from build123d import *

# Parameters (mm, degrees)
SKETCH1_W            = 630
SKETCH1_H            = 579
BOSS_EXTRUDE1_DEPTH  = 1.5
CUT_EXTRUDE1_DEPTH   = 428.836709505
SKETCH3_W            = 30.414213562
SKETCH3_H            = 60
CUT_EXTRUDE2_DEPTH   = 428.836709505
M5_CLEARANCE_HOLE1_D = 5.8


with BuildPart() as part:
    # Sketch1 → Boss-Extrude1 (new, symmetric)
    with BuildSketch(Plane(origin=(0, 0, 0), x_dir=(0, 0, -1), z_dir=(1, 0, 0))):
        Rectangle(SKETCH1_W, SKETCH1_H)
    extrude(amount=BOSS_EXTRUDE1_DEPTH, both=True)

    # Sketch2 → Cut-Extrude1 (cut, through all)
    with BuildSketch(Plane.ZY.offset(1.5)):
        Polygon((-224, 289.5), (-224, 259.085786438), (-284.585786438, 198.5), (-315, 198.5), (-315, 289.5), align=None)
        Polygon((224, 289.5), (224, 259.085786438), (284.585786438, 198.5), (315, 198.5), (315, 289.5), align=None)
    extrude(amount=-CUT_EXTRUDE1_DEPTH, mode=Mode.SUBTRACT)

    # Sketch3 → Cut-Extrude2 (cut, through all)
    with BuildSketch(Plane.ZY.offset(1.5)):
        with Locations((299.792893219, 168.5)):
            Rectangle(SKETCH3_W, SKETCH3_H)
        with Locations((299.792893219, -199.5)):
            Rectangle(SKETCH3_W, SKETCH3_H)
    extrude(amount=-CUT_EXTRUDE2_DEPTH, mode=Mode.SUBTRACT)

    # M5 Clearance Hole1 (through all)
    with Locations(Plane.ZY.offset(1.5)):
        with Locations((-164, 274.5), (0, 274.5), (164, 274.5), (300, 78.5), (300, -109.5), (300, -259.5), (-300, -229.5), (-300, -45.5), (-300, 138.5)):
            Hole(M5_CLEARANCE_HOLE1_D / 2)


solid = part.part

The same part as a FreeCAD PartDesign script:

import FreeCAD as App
import Part
import Sketcher
Q = App.Units.Quantity


def add_polygon(sketch, points):
    """Adds a closed chain of lines whose ends are joined by coincident constraints."""
    first, n = sketch.GeometryCount, len(points)
    for a, b in zip(points, points[1:] + points[:1]):
        sketch.addGeometry(Part.LineSegment(App.Vector(*a, 0), App.Vector(*b, 0)), False)
    for i in range(n):
        sketch.addConstraint(Sketcher.Constraint("Coincident", first + i, 2, first + (i + 1) % n, 1))

doc = App.newDocument("Part")
body = doc.addObject("PartDesign::Body", "Body")

# Sketch on YZ plane
sketch1 = doc.addObject("Sketcher::SketchObject", "Sketch")
body.addObject(sketch1)
sketch1.AttachmentSupport = (doc.YZ_Plane, [""])
sketch1.MapMode = "FlatFace"
add_polygon(sketch1, [(289.5, 315), (-289.5, 315), (-289.5, -315), (289.5, -315)])  # lines 0-3
sketch1.addConstraint(Sketcher.Constraint("Horizontal", 0))
sketch1.addConstraint(Sketcher.Constraint("Vertical", 1))
sketch1.addConstraint(Sketcher.Constraint("Horizontal", 2))
sketch1.addConstraint(Sketcher.Constraint("Vertical", 3))
sketch1.addConstraint(Sketcher.Constraint("Symmetric", 0, 2, 2, 2, -1, 1))
sketch1.addConstraint(Sketcher.Constraint("DistanceX", 0, 2, 0, 1, Q("579 mm")))
sketch1.addConstraint(Sketcher.Constraint("DistanceY", 1, 2, 1, 1, Q("630 mm")))
pad1 = doc.addObject("PartDesign::Pad", "Pad")
body.addObject(pad1)
pad1.Profile = sketch1
pad1.Length = 3
pad1.Midplane = True

# Sketch on YZ plane
sketch2 = doc.addObject("Sketcher::SketchObject", "Sketch001")
body.addObject(sketch2)
sketch2.AttachmentSupport = (doc.YZ_Plane, [""])
sketch2.MapMode = "FlatFace"
sketch2.AttachmentOffset = App.Placement(App.Vector(0, 0, -1.5), App.Rotation())
add_polygon(sketch2, [(259.085786, -224), (289.5, -224), (289.5, -315), (198.5, -315), (198.5, -284.585786)])  # lines 0-4
add_polygon(sketch2, [(289.5, 224), (259.085786, 224), (198.5, 284.585786), (198.5, 315), (289.5, 315)])  # lines 5-9
sketch2.addConstraint(Sketcher.Constraint("Horizontal", 0))
sketch2.addConstraint(Sketcher.Constraint("Vertical", 1))
sketch2.addConstraint(Sketcher.Constraint("Horizontal", 2))
sketch2.addConstraint(Sketcher.Constraint("Vertical", 3))
sketch2.addConstraint(Sketcher.Constraint("Horizontal", 5))
sketch2.addConstraint(Sketcher.Constraint("Vertical", 7))
sketch2.addConstraint(Sketcher.Constraint("Horizontal", 8))
sketch2.addConstraint(Sketcher.Constraint("Vertical", 9))
sketch2.addConstraint(Sketcher.Constraint("Symmetric", 4, 2, 5, 2, -1))
sketch2.addConstraint(Sketcher.Constraint("Symmetric", 3, 2, 6, 2, -1))
sketch2.addConstraint(Sketcher.Constraint("Symmetric", 1, 2, 8, 2, -1))
sketch2.addConstraint(Sketcher.Constraint("Perpendicular", 4, 6))
sketch2.addConstraint(Sketcher.Constraint("Equal", 8, 1))
sketch2.addConstraint(Sketcher.Constraint("DistanceX", 2, 2, 2, 1, Q("91 mm")))
sketch2.addConstraint(Sketcher.Constraint("DistanceY", 0, 2, -1, 1, Q("224 mm")))
sketch2.addConstraint(Sketcher.Constraint("DistanceX", -1, 1, 0, 2, Q("289.5 mm")))
sketch2.addConstraint(Sketcher.Constraint("Distance", 4, Q("85.681241 mm")))
pocket1 = doc.addObject("PartDesign::Pocket", "Pocket")
body.addObject(pocket1)
pocket1.Profile = sketch2
pocket1.Type = "ThroughAll"
pocket1.Reversed = True

# Sketch on YZ plane
sketch3 = doc.addObject("Sketcher::SketchObject", "Sketch002")
body.addObject(sketch3)
sketch3.AttachmentSupport = (doc.YZ_Plane, [""])
sketch3.MapMode = "FlatFace"
sketch3.AttachmentOffset = App.Placement(App.Vector(0, 0, -1.5), App.Rotation())
add_polygon(sketch3, [(198.5, 284.585786), (138.5, 284.585786), (138.5, 315), (198.5, 315)])  # lines 0-3
add_polygon(sketch3, [(-169.5, 284.585786), (-229.5, 284.585786), (-229.5, 315), (-169.5, 315)])  # lines 4-7
sketch3.addConstraint(Sketcher.Constraint("Horizontal", 0))
sketch3.addConstraint(Sketcher.Constraint("Vertical", 1))
sketch3.addConstraint(Sketcher.Constraint("Horizontal", 2))
sketch3.addConstraint(Sketcher.Constraint("Vertical", 3))
sketch3.addConstraint(Sketcher.Constraint("Horizontal", 4))
sketch3.addConstraint(Sketcher.Constraint("Vertical", 5))
sketch3.addConstraint(Sketcher.Constraint("Horizontal", 6))
sketch3.addConstraint(Sketcher.Constraint("Vertical", 7))
sketch3.addConstraint(Sketcher.Constraint("Horizontal", 3, 2, 4, 2))
sketch3.addConstraint(Sketcher.Constraint("Horizontal", 2, 2, 5, 2))
sketch3.addConstraint(Sketcher.Constraint("Equal", 2, 4))
sketch3.addConstraint(Sketcher.Constraint("DistanceX", 0, 2, 0, 1, Q("60 mm")))
sketch3.addConstraint(Sketcher.Constraint("DistanceY", -1, 1, 1, 2, Q("315 mm")))
sketch3.addConstraint(Sketcher.Constraint("DistanceX", 4, 2, 0, 2, Q("368 mm")))
sketch3.addConstraint(Sketcher.Constraint("DistanceX", -1, 1, 0, 2, Q("138.5 mm")))
sketch3.addConstraint(Sketcher.Constraint("DistanceY", 1, 1, 1, 2, Q("30.414214 mm")))
pocket2 = doc.addObject("PartDesign::Pocket", "Pocket001")
body.addObject(pocket2)
pocket2.Profile = sketch3
pocket2.Type = "ThroughAll"
pocket2.Reversed = True

# Sketch on YZ plane
sketch4 = doc.addObject("Sketcher::SketchObject", "Sketch003")
body.addObject(sketch4)
sketch4.AttachmentSupport = (doc.YZ_Plane, [""])
sketch4.MapMode = "FlatFace"
sketch4.AttachmentOffset = App.Placement(App.Vector(0, 0, -1.5), App.Rotation())
sketch4.addGeometry(Part.Circle(App.Vector(274.5, -164, 0), App.Vector(0, 0, 1), 2.9), False)
sketch4.addGeometry(Part.Circle(App.Vector(274.5, 0, 0), App.Vector(0, 0, 1), 2.9), False)
sketch4.addGeometry(Part.Circle(App.Vector(274.5, 164, 0), App.Vector(0, 0, 1), 2.9), False)
sketch4.addGeometry(Part.Circle(App.Vector(78.5, 300, 0), App.Vector(0, 0, 1), 2.9), False)
sketch4.addGeometry(Part.Circle(App.Vector(-109.5, 300, 0), App.Vector(0, 0, 1), 2.9), False)
sketch4.addGeometry(Part.Circle(App.Vector(-259.5, 300, 0), App.Vector(0, 0, 1), 2.9), False)
sketch4.addGeometry(Part.Circle(App.Vector(-229.5, -300, 0), App.Vector(0, 0, 1), 2.9), False)
sketch4.addGeometry(Part.Circle(App.Vector(-45.5, -300, 0), App.Vector(0, 0, 1), 2.9), False)
sketch4.addGeometry(Part.Circle(App.Vector(138.5, -300, 0), App.Vector(0, 0, 1), 2.9), False)
sketch4.addConstraint(Sketcher.Constraint("Equal", 0, 1))
sketch4.addConstraint(Sketcher.Constraint("Equal", 1, 2))
sketch4.addConstraint(Sketcher.Constraint("Equal", 2, 3))
sketch4.addConstraint(Sketcher.Constraint("Equal", 3, 4))
sketch4.addConstraint(Sketcher.Constraint("Equal", 4, 5))
sketch4.addConstraint(Sketcher.Constraint("Equal", 5, 6))
sketch4.addConstraint(Sketcher.Constraint("Equal", 6, 7))
sketch4.addConstraint(Sketcher.Constraint("Equal", 7, 8))
sketch4.addConstraint(Sketcher.Constraint("Symmetric", 0, 3, 2, 3, -1))
sketch4.addConstraint(Sketcher.Constraint("PointOnObject", 1, 3, -1))
sketch4.addConstraint(Sketcher.Constraint("Horizontal", 3, 3, 4, 3))
sketch4.addConstraint(Sketcher.Constraint("Horizontal", 4, 3, 5, 3))
sketch4.addConstraint(Sketcher.Constraint("Horizontal", 6, 3, 7, 3))
sketch4.addConstraint(Sketcher.Constraint("Horizontal", 7, 3, 8, 3))
sketch4.addConstraint(Sketcher.Constraint("Vertical", 0, 3, 1, 3))
sketch4.addConstraint(Sketcher.Constraint("Diameter", 0, Q("5.8 mm")))
sketch4.addConstraint(Sketcher.Constraint("DistanceY", 0, 3, -1, 1, Q("164 mm")))
sketch4.addConstraint(Sketcher.Constraint("DistanceY", -1, 1, 3, 3, Q("300 mm")))
sketch4.addConstraint(Sketcher.Constraint("DistanceY", 6, 3, -1, 1, Q("300 mm")))
sketch4.addConstraint(Sketcher.Constraint("DistanceX", 3, 3, 2, 3, Q("196 mm")))
sketch4.addConstraint(Sketcher.Constraint("DistanceX", 4, 3, 3, 3, Q("188 mm")))
sketch4.addConstraint(Sketcher.Constraint("DistanceX", 5, 3, 4, 3, Q("150 mm")))
sketch4.addConstraint(Sketcher.Constraint("DistanceX", 6, 3, 0, 3, Q("504 mm")))
sketch4.addConstraint(Sketcher.Constraint("DistanceX", 6, 3, 7, 3, Q("184 mm")))
sketch4.addConstraint(Sketcher.Constraint("DistanceX", 7, 3, 8, 3, Q("184 mm")))
sketch4.addConstraint(Sketcher.Constraint("DistanceX", -1, 1, 0, 3, Q("274.5 mm")))
doc.recompute()
hole = doc.addObject("PartDesign::Hole", "Hole")
body.addObject(hole)
hole.Profile = sketch4
hole.ThreadType = "None"
hole.Diameter = 5.8
hole.DepthType = "ThroughAll"
hole.Reversed = True

doc.recompute()
